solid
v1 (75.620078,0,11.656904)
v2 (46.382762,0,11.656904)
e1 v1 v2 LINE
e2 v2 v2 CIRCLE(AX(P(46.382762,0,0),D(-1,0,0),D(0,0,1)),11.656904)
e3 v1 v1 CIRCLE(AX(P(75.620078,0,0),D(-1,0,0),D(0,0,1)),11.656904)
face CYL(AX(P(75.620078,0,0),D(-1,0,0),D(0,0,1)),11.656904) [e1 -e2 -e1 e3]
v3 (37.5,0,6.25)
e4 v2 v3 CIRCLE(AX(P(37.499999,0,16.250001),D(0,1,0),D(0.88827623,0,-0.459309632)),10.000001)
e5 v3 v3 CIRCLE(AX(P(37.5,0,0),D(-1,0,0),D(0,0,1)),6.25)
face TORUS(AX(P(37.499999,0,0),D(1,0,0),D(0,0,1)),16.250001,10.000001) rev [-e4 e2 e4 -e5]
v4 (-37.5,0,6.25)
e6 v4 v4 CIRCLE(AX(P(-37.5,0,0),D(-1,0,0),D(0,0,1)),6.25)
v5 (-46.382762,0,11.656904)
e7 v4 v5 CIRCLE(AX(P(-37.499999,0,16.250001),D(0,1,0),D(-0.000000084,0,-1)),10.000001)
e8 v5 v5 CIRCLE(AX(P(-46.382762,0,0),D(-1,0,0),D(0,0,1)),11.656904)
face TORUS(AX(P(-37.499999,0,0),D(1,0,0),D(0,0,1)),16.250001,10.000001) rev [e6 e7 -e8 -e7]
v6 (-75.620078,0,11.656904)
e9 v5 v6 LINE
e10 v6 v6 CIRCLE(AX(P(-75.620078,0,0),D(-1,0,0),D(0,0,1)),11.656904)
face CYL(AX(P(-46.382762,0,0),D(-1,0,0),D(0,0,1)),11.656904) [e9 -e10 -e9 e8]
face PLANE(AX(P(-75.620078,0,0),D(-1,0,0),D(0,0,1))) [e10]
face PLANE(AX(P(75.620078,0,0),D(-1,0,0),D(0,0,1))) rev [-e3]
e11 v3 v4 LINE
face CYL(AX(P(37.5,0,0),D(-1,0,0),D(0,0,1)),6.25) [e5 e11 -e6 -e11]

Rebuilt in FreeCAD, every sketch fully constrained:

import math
import FreeCAD as App
import Part
import Sketcher

doc = App.newDocument("Part")
body = doc.addObject("PartDesign::Body", "Body")

sketch1 = body.newObject("Sketcher::SketchObject", "Sketch")
sketch1.AttachmentSupport = (doc.getObject("XZ_Plane"), [""])
sketch1.MapMode = "FlatFace"
sketch1.addGeometry(Part.LineSegment(App.Vector(38, 6, 0), App.Vector(-38, 6, 0)), False)
sketch1.addGeometry(Part.ArcOfCircle(Part.Circle(App.Vector(-37, 16, 0), App.Vector(0, 0, 1), 10), math.radians(-153), math.radians(-90)), False)
sketch1.addGeometry(Part.LineSegment(App.Vector(-46, 12, 0), App.Vector(-76, 12, 0)), False)
sketch1.addGeometry(Part.LineSegment(App.Vector(-76, 12, 0), App.Vector(-76, 0, 0)), False)
sketch1.addGeometry(Part.LineSegment(App.Vector(-76, 0, 0), App.Vector(76, 0, 0)), False)
sketch1.addGeometry(Part.LineSegment(App.Vector(76, 0, 0), App.Vector(76, 12, 0)), False)
sketch1.addGeometry(Part.LineSegment(App.Vector(76, 12, 0), App.Vector(46, 12, 0)), False)
sketch1.addGeometry(Part.ArcOfCircle(Part.Circle(App.Vector(37, 16, 0), App.Vector(0, 0, 1), 10), math.radians(-90), math.radians(-27)), False)
sketch1.addConstraint(Sketcher.Constraint("Tangent", 0, 2, 1, 2))
sketch1.addConstraint(Sketcher.Constraint("Coincident", 1, 1, 2, 1))
sketch1.addConstraint(Sketcher.Constraint("Coincident", 2, 2, 3, 1))
sketch1.addConstraint(Sketcher.Constraint("Coincident", 3, 2, 4, 1))
sketch1.addConstraint(Sketcher.Constraint("Coincident", 4, 2, 5, 1))
sketch1.addConstraint(Sketcher.Constraint("Coincident", 5, 2, 6, 1))
sketch1.addConstraint(Sketcher.Constraint("Coincident", 6, 2, 7, 2))
sketch1.addConstraint(Sketcher.Constraint("Tangent", 7, 1, 0, 1))
sketch1.addConstraint(Sketcher.Constraint("Horizontal", 0))
sketch1.addConstraint(Sketcher.Constraint("Horizontal", 2))
sketch1.addConstraint(Sketcher.Constraint("Vertical", 3))
sketch1.addConstraint(Sketcher.Constraint("Horizontal", 4))
sketch1.addConstraint(Sketcher.Constraint("Vertical", 5))
sketch1.addConstraint(Sketcher.Constraint("Horizontal", 6))
sketch1.addConstraint(Sketcher.Constraint("Equal", 1, 7))
sketch1.addConstraint(Sketcher.Constraint("Symmetric", 3, 2, 4, 2, -1, 1))
sketch1.addConstraint(Sketcher.Constraint("Symmetric", 1, 1, 6, 2, -2))
sketch1.addConstraint(Sketcher.Constraint("Radius", 1, 10.000001))
sketch1.addConstraint(Sketcher.Constraint("DistanceX", 0, 2, 0, 1, 75.0))
sketch1.addConstraint(Sketcher.Constraint("DistanceY", -1, 1, 1, 3, 16.250001))
sketch1.addConstraint(Sketcher.Constraint("DistanceX", 2, 2, 2, 1, 29.237316))
sketch1.addConstraint(Sketcher.Constraint("DistanceX", 4, 1, 4, 2, 151.240156))
revolution = body.newObject("PartDesign::Revolution", "Revolution")
revolution.Profile = sketch1
revolution.ReferenceAxis = (sketch1, ["H_Axis"])
revolution.Angle = 360

doc.recompute()
